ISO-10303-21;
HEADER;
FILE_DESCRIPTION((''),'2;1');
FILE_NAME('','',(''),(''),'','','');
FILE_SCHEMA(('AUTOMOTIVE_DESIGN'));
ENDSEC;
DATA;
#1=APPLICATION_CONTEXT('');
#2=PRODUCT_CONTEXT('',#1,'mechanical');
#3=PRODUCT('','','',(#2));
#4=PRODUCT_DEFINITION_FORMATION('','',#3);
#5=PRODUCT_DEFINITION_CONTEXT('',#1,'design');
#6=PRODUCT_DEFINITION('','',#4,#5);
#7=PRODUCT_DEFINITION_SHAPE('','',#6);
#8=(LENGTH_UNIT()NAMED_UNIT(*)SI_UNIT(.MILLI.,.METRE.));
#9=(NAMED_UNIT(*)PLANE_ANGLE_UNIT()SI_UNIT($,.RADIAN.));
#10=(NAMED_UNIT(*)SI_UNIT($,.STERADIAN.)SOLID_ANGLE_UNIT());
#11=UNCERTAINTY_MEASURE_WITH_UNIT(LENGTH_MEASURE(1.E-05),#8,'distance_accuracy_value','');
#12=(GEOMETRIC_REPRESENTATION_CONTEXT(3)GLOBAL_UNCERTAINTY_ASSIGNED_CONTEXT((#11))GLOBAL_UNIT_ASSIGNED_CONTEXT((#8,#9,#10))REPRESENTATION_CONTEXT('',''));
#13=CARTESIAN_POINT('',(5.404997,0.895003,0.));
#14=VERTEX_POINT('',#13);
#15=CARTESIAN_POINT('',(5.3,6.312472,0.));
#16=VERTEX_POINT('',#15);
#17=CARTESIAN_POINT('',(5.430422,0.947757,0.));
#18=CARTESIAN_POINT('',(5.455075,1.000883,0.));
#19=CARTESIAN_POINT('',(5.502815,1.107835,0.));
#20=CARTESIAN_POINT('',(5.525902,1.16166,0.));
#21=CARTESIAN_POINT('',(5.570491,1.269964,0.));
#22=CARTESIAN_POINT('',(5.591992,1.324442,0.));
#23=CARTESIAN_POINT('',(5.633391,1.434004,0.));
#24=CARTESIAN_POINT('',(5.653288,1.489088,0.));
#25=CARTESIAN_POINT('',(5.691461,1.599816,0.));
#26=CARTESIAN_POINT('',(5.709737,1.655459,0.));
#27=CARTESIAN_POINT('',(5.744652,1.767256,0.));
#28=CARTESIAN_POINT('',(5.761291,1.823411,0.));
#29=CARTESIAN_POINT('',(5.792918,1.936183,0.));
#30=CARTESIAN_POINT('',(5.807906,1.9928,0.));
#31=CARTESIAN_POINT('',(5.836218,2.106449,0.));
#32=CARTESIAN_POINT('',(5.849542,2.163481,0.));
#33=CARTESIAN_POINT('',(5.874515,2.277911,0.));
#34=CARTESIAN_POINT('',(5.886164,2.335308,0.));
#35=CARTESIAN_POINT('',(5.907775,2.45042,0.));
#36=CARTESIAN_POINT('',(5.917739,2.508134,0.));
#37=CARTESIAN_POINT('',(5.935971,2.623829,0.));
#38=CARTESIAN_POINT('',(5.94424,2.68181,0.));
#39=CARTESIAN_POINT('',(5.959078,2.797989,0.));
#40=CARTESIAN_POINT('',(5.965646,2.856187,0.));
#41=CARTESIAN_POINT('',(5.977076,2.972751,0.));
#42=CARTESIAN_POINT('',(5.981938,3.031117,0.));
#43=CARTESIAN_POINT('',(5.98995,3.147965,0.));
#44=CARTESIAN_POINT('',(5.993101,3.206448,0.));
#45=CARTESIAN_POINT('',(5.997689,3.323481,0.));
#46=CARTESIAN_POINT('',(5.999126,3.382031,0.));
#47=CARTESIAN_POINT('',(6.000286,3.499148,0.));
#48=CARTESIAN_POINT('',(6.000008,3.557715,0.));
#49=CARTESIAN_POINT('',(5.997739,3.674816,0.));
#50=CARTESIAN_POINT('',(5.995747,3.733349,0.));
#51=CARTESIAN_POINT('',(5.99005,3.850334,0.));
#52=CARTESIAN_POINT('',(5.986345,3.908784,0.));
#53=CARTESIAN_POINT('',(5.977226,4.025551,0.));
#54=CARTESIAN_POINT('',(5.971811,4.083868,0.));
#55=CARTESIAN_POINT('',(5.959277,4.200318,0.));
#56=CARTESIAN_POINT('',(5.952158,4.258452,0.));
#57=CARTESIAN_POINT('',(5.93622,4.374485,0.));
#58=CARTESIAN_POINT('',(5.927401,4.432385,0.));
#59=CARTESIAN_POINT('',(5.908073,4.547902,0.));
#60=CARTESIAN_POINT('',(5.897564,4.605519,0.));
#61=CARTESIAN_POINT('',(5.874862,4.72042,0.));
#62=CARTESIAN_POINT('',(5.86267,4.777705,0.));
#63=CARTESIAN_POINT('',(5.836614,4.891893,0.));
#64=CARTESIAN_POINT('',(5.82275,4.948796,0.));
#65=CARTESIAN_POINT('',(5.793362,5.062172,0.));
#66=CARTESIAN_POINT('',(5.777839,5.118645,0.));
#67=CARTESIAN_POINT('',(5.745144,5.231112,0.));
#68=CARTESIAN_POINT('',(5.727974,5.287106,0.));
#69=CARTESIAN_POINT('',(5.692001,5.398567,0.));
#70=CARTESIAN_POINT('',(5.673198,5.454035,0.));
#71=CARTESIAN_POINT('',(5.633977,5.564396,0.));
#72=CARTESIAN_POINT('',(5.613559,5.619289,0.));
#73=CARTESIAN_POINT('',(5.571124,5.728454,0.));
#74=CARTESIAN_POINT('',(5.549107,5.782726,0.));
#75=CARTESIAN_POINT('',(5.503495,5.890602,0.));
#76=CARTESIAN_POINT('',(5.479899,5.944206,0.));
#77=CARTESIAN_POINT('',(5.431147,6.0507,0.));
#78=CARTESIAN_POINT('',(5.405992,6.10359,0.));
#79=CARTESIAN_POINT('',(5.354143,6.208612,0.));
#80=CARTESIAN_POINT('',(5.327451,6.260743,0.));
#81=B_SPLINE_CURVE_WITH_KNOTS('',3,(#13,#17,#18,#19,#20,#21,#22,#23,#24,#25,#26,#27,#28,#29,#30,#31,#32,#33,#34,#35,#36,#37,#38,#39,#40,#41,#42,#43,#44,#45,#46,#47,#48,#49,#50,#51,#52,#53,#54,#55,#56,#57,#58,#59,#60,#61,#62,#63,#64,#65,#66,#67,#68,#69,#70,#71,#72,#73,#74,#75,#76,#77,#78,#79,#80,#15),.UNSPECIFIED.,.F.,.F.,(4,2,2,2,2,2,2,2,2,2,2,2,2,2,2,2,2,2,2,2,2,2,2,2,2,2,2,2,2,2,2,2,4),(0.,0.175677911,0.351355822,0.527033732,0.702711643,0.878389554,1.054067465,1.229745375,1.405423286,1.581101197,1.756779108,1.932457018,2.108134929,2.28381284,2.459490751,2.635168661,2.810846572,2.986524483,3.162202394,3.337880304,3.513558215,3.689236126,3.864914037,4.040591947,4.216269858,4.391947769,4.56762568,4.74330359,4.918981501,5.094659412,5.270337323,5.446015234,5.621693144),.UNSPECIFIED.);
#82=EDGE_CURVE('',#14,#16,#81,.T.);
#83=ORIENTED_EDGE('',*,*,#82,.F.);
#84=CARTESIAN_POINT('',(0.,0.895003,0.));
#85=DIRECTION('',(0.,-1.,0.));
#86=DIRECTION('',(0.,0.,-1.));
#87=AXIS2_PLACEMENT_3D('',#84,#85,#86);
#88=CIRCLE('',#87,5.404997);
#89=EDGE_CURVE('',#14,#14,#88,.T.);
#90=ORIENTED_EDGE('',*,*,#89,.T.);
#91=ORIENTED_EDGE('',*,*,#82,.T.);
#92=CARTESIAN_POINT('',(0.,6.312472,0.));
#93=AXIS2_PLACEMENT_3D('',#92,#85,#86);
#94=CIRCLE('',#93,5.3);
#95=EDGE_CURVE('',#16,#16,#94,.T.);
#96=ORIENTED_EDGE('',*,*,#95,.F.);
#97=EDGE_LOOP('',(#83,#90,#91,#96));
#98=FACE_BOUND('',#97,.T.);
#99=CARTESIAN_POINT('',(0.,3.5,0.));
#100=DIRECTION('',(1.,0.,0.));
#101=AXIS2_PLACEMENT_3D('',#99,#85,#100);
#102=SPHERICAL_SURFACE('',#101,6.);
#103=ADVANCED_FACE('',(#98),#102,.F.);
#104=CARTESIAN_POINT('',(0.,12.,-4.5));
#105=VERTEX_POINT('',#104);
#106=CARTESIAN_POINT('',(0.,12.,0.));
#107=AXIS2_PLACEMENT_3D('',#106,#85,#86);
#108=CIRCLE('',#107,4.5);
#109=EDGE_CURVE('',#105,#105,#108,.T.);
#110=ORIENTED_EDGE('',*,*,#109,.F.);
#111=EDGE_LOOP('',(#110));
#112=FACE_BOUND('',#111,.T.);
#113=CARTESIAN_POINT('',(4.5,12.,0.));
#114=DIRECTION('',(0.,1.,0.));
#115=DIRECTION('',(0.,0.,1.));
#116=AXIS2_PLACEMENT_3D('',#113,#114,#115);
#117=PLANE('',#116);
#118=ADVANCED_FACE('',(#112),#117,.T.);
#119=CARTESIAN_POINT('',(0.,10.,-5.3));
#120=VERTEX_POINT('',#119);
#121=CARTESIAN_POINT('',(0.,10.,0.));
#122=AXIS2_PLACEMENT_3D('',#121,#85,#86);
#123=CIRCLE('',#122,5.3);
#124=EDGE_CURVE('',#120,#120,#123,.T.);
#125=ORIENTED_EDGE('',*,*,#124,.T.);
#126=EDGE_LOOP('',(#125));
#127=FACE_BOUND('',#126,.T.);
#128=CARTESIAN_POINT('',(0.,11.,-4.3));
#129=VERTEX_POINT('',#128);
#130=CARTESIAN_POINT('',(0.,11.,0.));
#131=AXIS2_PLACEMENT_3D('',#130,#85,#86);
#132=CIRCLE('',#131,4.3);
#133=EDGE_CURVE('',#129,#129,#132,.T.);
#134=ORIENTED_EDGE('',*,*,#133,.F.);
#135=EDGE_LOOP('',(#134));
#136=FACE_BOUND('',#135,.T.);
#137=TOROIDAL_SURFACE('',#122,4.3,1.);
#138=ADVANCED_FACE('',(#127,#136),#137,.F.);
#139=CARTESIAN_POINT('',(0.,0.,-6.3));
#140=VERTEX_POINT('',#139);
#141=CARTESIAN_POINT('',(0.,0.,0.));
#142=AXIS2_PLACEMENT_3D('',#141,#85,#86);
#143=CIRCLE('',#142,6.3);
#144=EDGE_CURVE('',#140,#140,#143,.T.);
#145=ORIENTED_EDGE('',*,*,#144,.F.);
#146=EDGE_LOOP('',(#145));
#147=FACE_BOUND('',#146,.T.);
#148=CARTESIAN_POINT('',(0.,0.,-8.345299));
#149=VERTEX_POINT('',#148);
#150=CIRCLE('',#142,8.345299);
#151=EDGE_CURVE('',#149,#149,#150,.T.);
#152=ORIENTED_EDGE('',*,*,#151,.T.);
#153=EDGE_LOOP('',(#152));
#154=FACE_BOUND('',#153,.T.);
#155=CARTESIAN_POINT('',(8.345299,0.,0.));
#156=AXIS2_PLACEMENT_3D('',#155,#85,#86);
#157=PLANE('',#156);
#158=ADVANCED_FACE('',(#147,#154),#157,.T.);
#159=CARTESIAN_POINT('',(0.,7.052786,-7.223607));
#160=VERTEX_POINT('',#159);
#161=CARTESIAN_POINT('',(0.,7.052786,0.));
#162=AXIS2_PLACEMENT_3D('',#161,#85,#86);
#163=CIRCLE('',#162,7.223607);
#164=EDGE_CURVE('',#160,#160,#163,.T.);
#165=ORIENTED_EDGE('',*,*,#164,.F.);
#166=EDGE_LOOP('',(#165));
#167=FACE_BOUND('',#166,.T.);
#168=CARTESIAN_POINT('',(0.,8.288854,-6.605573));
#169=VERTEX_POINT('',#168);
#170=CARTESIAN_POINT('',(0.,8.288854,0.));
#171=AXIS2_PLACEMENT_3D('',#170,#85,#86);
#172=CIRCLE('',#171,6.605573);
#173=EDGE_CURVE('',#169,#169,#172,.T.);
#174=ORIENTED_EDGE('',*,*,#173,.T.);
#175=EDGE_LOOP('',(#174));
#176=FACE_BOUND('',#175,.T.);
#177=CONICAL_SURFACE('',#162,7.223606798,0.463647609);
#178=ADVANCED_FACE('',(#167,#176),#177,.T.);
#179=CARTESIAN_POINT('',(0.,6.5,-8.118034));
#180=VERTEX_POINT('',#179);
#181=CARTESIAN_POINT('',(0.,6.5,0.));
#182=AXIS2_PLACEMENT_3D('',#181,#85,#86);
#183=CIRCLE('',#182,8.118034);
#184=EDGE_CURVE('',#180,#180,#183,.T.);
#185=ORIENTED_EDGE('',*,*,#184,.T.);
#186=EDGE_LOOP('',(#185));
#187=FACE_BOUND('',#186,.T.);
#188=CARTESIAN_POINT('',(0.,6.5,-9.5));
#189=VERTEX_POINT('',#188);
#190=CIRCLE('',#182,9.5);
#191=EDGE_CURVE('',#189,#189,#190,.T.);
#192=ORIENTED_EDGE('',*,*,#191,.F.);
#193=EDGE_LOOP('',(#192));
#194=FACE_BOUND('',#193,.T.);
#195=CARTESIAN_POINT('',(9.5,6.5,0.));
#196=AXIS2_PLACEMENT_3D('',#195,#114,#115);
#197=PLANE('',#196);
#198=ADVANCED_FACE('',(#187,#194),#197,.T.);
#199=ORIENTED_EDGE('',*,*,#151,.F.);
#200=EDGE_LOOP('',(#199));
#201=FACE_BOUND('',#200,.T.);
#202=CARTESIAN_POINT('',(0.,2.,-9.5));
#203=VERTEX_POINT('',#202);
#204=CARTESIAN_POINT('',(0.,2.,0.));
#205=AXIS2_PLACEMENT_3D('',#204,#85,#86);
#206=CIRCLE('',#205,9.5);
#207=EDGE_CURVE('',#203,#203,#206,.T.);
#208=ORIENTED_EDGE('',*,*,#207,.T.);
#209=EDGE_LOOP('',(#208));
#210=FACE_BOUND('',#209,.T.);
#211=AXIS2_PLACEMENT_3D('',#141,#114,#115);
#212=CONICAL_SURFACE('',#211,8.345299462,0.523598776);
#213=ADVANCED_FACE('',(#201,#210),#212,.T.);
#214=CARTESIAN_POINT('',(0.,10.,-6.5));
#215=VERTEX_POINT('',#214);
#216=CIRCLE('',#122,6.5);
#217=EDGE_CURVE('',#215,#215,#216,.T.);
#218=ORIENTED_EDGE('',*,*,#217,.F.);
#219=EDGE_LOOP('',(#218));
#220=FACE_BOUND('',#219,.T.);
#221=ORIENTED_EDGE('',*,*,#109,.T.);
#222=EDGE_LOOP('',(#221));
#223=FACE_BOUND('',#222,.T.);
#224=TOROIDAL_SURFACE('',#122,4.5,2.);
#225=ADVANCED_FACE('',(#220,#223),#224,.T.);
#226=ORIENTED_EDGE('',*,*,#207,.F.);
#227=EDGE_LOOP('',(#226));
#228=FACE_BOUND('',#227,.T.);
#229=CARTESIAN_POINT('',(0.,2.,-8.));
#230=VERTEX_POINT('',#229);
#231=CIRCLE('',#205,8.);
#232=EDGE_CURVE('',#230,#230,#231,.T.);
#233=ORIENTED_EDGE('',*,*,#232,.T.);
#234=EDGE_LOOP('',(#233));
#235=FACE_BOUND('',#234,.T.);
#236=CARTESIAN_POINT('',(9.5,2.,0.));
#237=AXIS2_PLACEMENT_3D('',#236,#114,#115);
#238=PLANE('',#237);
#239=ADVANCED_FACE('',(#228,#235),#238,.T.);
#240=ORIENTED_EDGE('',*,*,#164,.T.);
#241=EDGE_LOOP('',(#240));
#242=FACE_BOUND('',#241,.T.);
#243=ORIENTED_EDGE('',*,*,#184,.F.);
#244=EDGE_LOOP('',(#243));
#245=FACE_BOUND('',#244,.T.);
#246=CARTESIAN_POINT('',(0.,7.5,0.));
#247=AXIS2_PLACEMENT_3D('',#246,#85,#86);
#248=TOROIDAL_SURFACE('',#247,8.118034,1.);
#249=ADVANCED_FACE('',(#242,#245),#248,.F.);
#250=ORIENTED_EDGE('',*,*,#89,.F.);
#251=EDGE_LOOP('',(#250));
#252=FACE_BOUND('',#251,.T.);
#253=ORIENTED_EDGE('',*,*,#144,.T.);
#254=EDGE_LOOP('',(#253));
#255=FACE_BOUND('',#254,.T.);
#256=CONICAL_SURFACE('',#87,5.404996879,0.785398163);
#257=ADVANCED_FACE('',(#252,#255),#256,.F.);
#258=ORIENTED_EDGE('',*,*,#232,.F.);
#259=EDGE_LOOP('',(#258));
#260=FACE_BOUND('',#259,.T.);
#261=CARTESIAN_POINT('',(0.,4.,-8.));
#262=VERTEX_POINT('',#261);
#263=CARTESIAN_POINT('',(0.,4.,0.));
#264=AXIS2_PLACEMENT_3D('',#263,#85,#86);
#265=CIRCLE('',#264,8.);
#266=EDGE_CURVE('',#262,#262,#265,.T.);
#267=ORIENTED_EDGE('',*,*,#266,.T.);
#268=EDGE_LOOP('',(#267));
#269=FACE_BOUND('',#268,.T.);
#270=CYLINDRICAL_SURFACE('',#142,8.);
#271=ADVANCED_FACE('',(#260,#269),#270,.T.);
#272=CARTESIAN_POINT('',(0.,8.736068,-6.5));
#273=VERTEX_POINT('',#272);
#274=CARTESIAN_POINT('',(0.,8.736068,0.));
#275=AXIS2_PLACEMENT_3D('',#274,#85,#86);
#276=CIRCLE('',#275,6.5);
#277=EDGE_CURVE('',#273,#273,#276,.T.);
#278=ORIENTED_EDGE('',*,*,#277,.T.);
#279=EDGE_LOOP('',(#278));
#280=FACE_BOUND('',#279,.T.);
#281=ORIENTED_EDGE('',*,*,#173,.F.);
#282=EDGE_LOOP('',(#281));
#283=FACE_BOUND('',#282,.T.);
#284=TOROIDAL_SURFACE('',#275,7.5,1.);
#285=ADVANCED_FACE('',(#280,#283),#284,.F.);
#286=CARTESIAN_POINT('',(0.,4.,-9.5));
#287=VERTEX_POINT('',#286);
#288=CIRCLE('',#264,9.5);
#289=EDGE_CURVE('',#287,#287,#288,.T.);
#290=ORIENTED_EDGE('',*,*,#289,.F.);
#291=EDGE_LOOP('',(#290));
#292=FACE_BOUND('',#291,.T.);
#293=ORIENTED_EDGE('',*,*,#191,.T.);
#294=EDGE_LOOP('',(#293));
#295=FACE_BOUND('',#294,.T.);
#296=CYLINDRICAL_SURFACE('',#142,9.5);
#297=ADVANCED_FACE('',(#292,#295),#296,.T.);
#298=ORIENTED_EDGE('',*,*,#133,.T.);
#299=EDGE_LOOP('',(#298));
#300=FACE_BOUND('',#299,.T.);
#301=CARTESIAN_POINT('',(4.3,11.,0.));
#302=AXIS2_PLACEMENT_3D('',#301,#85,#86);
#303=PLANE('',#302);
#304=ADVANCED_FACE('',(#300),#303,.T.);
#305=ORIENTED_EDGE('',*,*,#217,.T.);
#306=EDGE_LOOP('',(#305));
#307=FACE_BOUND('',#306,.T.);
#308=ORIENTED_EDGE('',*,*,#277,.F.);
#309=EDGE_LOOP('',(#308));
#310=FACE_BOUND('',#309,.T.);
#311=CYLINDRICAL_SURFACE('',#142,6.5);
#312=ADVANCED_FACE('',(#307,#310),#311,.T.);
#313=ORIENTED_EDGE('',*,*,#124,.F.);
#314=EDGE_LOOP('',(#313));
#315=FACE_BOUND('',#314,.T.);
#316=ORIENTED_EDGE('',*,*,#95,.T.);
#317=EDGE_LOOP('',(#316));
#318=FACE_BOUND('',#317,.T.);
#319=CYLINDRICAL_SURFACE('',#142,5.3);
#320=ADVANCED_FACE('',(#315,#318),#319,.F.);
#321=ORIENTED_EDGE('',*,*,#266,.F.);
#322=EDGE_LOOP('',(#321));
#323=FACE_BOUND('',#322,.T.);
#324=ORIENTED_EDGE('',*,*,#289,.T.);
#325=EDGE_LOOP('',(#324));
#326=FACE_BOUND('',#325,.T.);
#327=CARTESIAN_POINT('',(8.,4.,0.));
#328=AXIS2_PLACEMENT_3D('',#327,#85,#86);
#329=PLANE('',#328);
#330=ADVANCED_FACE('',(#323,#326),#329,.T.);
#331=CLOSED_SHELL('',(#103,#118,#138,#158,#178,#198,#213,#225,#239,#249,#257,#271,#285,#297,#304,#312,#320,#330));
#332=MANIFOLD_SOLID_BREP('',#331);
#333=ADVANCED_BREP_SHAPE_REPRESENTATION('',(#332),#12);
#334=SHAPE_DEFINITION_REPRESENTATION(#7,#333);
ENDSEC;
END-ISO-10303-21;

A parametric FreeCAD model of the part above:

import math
import FreeCAD as App
import Part
import Sketcher

V = App.Vector
Q = App.Units.Quantity

doc = App.newDocument("Part")
body = doc.addObject("PartDesign::Body", "Body")

# Sketch on XY plane
sketch1 = doc.addObject("Sketcher::SketchObject", "Sketch")
body.addObject(sketch1)
sketch1.AttachmentSupport = (doc.XY_Plane, [""])
sketch1.MapMode = "FlatFace"
sketch1.addGeometry(Part.LineSegment(V(6.3, 0, 0), V(8.35, 0, 0)), False)
sketch1.addGeometry(Part.LineSegment(V(8.35, 0, 0), V(9.5, 2, 0)), False)
sketch1.addGeometry(Part.LineSegment(V(9.5, 2, 0), V(8, 2, 0)), False)
sketch1.addGeometry(Part.LineSegment(V(8, 2, 0), V(8, 4, 0)), False)
sketch1.addGeometry(Part.LineSegment(V(8, 4, 0), V(9.5, 4, 0)), False)
sketch1.addGeometry(Part.LineSegment(V(9.5, 4, 0), V(9.5, 6.5, 0)), False)
sketch1.addGeometry(Part.LineSegment(V(9.5, 6.5, 0), V(8.12, 6.5, 0)), False)
sketch1.addGeometry(Part.ArcOfCircle(Part.Circle(V(8.12, 7.5, 0), V(0, 0, 1), 1), math.radians(-153), math.radians(-90)), False)
sketch1.addGeometry(Part.LineSegment(V(7.22, 7.05, 0), V(6.61, 8.29, 0)), False)
sketch1.addGeometry(Part.ArcOfCircle(Part.Circle(V(7.5, 8.74, 0), V(0, 0, 1), 1), math.radians(-180), math.radians(-153)), False)
sketch1.addGeometry(Part.LineSegment(V(6.5, 8.74, 0), V(6.5, 10, 0)), False)
sketch1.addGeometry(Part.ArcOfCircle(Part.Circle(V(4.5, 10, 0), V(0, 0, 1), 2), math.radians(0), math.radians(90)), False)
sketch1.addGeometry(Part.LineSegment(V(4.5, 12, 0), V(0, 12, 0)), False)
sketch1.addGeometry(Part.LineSegment(V(0, 12, 0), V(0, 11, 0)), False)
sketch1.addGeometry(Part.LineSegment(V(0, 11, 0), V(4.3, 11, 0)), False)
sketch1.addGeometry(Part.ArcOfCircle(Part.Circle(V(4.3, 10, 0), V(0, 0, 1), 1), math.radians(0), math.radians(90)), False)
sketch1.addGeometry(Part.LineSegment(V(5.3, 10, 0), V(5.3, 6.31, 0)), False)
sketch1.addGeometry(Part.ArcOfCircle(Part.Circle(V(0, 3.5, 0), V(0, 0, 1), 6), math.radians(-26), math.radians(28)), False)
sketch1.addGeometry(Part.LineSegment(V(5.4, 0.9, 0), V(6.3, 0, 0)), False)
sketch1.addConstraint(Sketcher.Constraint("Coincident", 0, 2, 1, 1))
sketch1.addConstraint(Sketcher.Constraint("Coincident", 1, 2, 2, 1))
sketch1.addConstraint(Sketcher.Constraint("Coincident", 2, 2, 3, 1))
sketch1.addConstraint(Sketcher.Constraint("Coincident", 3, 2, 4, 1))
sketch1.addConstraint(Sketcher.Constraint("Coincident", 4, 2, 5, 1))
sketch1.addConstraint(Sketcher.Constraint("Coincident", 5, 2, 6, 1))
sketch1.addConstraint(Sketcher.Constraint("Tangent", 6, 2, 7, 2))
sketch1.addConstraint(Sketcher.Constraint("Tangent", 7, 1, 8, 1))
sketch1.addConstraint(Sketcher.Constraint("Tangent", 8, 2, 9, 2))
sketch1.addConstraint(Sketcher.Constraint("Tangent", 9, 1, 10, 1))
sketch1.addConstraint(Sketcher.Constraint("Tangent", 10, 2, 11, 1))
sketch1.addConstraint(Sketcher.Constraint("Tangent", 11, 2, 12, 1))
sketch1.addConstraint(Sketcher.Constraint("Coincident", 12, 2, 13, 1))
sketch1.addConstraint(Sketcher.Constraint("Coincident", 13, 2, 14, 1))
sketch1.addConstraint(Sketcher.Constraint("Tangent", 14, 2, 15, 2))
sketch1.addConstraint(Sketcher.Constraint("Tangent", 15, 1, 16, 1))
sketch1.addConstraint(Sketcher.Constraint("Coincident", 16, 2, 17, 2))
sketch1.addConstraint(Sketcher.Constraint("Coincident", 17, 1, 18, 1))
sketch1.addConstraint(Sketcher.Constraint("Coincident", 18, 2, 0, 1))
sketch1.addConstraint(Sketcher.Constraint("Horizontal", 0))
sketch1.addConstraint(Sketcher.Constraint("Horizontal", 2))
sketch1.addConstraint(Sketcher.Constraint("Vertical", 3))
sketch1.addConstraint(Sketcher.Constraint("Horizontal", 4))
sketch1.addConstraint(Sketcher.Constraint("Vertical", 5))
sketch1.addConstraint(Sketcher.Constraint("Horizontal", 6))
sketch1.addConstraint(Sketcher.Constraint("Vertical", 10))
sketch1.addConstraint(Sketcher.Constraint("Horizontal", 12))
sketch1.addConstraint(Sketcher.Constraint("Vertical", 13))
sketch1.addConstraint(Sketcher.Constraint("Horizontal", 14))
sketch1.addConstraint(Sketcher.Constraint("Vertical", 16))
sketch1.addConstraint(Sketcher.Constraint("Equal", 7, 9))
sketch1.addConstraint(Sketcher.Constraint("Equal", 9, 15))
sketch1.addConstraint(Sketcher.Constraint("PointOnObject", 17, 3, -2))
sketch1.addConstraint(Sketcher.Constraint("PointOnObject", 0, 2, -1))
sketch1.addConstraint(Sketcher.Constraint("PointOnObject", 12, 2, -2))
sketch1.addConstraint(Sketcher.Constraint("Horizontal", 11, 3, 15, 3))
sketch1.addConstraint(Sketcher.Constraint("Vertical", 1, 2, 4, 2))
sketch1.addConstraint(Sketcher.Constraint("Radius", 7, Q("1 mm")))
sketch1.addConstraint(Sketcher.Constraint("Radius", 11, Q("2 mm")))
sketch1.addConstraint(Sketcher.Constraint("Radius", 17, Q("6 mm")))
sketch1.addConstraint(Sketcher.Constraint("DistanceY", 3, 1, 3, 2, Q("2 mm")))
sketch1.addConstraint(Sketcher.Constraint("Angle", 1, Q("60 deg")))
sketch1.addConstraint(Sketcher.Constraint("Angle", 18, Q("-45 deg")))
sketch1.addConstraint(Sketcher.Constraint("DistanceX", 2, 2, 2, 1, Q("1.5 mm")))
sketch1.addConstraint(Sketcher.Constraint("DistanceX", 12, 2, 12, 1, Q("4.5 mm")))
sketch1.addConstraint(Sketcher.Constraint("DistanceX", 14, 1, 14, 2, Q("4.3 mm")))
sketch1.addConstraint(Sketcher.Constraint("DistanceY", 5, 1, 5, 2, Q("2.5 mm")))
sketch1.addConstraint(Sketcher.Constraint("DistanceY", -1, 1, 11, 3, Q("10 mm")))
sketch1.addConstraint(Sketcher.Constraint("DistanceY", -1, 1, 1, 2, Q("2 mm")))
sketch1.addConstraint(Sketcher.Constraint("DistanceX", -1, 1, 2, 2, Q("8 mm")))
sketch1.addConstraint(Sketcher.Constraint("DistanceY", 17, 3, 7, 3, Q("4 mm")))
sketch1.addConstraint(Sketcher.Constraint("DistanceX", -1, 1, 18, 2, Q("6.3 mm")))
sketch1.addConstraint(Sketcher.Constraint("DistanceX", 6, 2, 6, 1, Q("1.381966 mm")))
sketch1.addConstraint(Sketcher.Constraint("DistanceY", 10, 1, 10, 2, Q("1.263932 mm")))
revolution = doc.addObject("PartDesign::Revolution", "Revolution")
body.addObject(revolution)
revolution.Profile = sketch1
revolution.ReferenceAxis = (sketch1, ["V_Axis"])
revolution.Angle = 360

doc.recompute()
